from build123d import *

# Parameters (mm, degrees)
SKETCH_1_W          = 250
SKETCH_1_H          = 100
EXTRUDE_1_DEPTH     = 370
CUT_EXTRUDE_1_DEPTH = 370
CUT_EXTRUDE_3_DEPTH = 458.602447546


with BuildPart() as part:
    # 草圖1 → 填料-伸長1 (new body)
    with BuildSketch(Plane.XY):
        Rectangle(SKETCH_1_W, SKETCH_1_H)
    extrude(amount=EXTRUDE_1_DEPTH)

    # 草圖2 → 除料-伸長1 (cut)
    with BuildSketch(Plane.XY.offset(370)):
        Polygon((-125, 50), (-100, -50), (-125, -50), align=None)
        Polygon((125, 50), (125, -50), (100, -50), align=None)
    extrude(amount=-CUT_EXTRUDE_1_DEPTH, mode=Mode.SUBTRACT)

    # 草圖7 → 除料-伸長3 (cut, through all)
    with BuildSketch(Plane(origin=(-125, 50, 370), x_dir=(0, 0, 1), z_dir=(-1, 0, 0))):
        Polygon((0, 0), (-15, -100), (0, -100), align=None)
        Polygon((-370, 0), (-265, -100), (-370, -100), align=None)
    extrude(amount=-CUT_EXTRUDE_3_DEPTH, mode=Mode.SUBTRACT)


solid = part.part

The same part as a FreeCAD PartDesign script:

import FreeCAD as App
import Part
import Sketcher

doc = App.newDocument("Part")
body = doc.addObject("PartDesign::Body", "Body")

sketch1 = body.newObject("Sketcher::SketchObject", "Sketch")
sketch1.AttachmentSupport = (doc.getObject("XY_Plane"), [""])
sketch1.MapMode = "FlatFace"
sketch1.addGeometry([
    Part.LineSegment(App.Vector(-125, 50, 0), App.Vector(-125, -50, 0)),
    Part.LineSegment(App.Vector(-125, -50, 0), App.Vector(125, -50, 0)),
    Part.LineSegment(App.Vector(125, -50, 0), App.Vector(125, 50, 0)),
    Part.LineSegment(App.Vector(125, 50, 0), App.Vector(-125, 50, 0)),
], False)
sketch1.addConstraint([
    Sketcher.Constraint("Coincident", 0, 2, 1, 1),
    Sketcher.Constraint("Coincident", 1, 2, 2, 1),
    Sketcher.Constraint("Coincident", 2, 2, 3, 1),
    Sketcher.Constraint("Coincident", 3, 2, 0, 1),
    Sketcher.Constraint("Vertical", 0),
    Sketcher.Constraint("Horizontal", 1),
    Sketcher.Constraint("Vertical", 2),
    Sketcher.Constraint("Horizontal", 3),
    Sketcher.Constraint("Symmetric", 0, 2, 2, 2, -1, 1),
    Sketcher.Constraint("DistanceX", 1, 1, 1, 2, 250.0),
    Sketcher.Constraint("DistanceY", 0, 2, 0, 1, 100.0),
])
pad1 = body.newObject("PartDesign::Pad", "Pad")
pad1.Profile = sketch1
pad1.Length = 370

sketch2 = body.newObject("Sketcher::SketchObject", "Sketch001")
sketch2.AttachmentSupport = (doc.getObject("XY_Plane"), [""])
sketch2.MapMode = "FlatFace"
sketch2.AttachmentOffset = App.Placement(App.Vector(0, 0, 370), App.Rotation())
sketch2.addGeometry([
    Part.LineSegment(App.Vector(-100, -50, 0), App.Vector(-125, 50, 0)),
    Part.LineSegment(App.Vector(-125, 50, 0), App.Vector(-125, -50, 0)),
    Part.LineSegment(App.Vector(-125, -50, 0), App.Vector(-100, -50, 0)),
    Part.LineSegment(App.Vector(125, -50, 0), App.Vector(125, 50, 0)),
    Part.LineSegment(App.Vector(125, 50, 0), App.Vector(100, -50, 0)),
    Part.LineSegment(App.Vector(100, -50, 0), App.Vector(125, -50, 0)),
], False)
sketch2.addConstraint([
    Sketcher.Constraint("Coincident", 0, 2, 1, 1),
    Sketcher.Constraint("Coincident", 1, 2, 2, 1),
    Sketcher.Constraint("Coincident", 2, 2, 0, 1),
    Sketcher.Constraint("Coincident", 3, 2, 4, 1),
    Sketcher.Constraint("Coincident", 4, 2, 5, 1),
    Sketcher.Constraint("Coincident", 5, 2, 3, 1),
    Sketcher.Constraint("Vertical", 1),
    Sketcher.Constraint("Horizontal", 2),
    Sketcher.Constraint("Vertical", 3),
    Sketcher.Constraint("Horizontal", 5),
    Sketcher.Constraint("Symmetric", 1, 2, 3, 2, -1, 1),
    Sketcher.Constraint("Symmetric", 2, 2, 4, 2, -2),
    Sketcher.Constraint("Horizontal", 0, 2, 3, 2),
    Sketcher.Constraint("DistanceX", 2, 1, 2, 2, 25.0),
    Sketcher.Constraint("DistanceY", 1, 2, 1, 1, 100.0),
    Sketcher.Constraint("DistanceX", 0, 2, -1, 1, 125.0),
])
pocket1 = body.newObject("PartDesign::Pocket", "Pocket")
pocket1.Profile = sketch2
pocket1.Length = 370

sketch3 = body.newObject("Sketcher::SketchObject", "Sketch002")
sketch3.AttachmentSupport = (doc.getObject("YZ_Plane"), [""])
sketch3.MapMode = "FlatFace"
sketch3.AttachmentOffset = App.Placement(App.Vector(0, 0, -125), App.Rotation())
sketch3.addGeometry([
    Part.LineSegment(App.Vector(50, 370, 0), App.Vector(-50, 355, 0)),
    Part.LineSegment(App.Vector(-50, 355, 0), App.Vector(-50, 370, 0)),
    Part.LineSegment(App.Vector(-50, 370, 0), App.Vector(50, 370, 0)),
    Part.LineSegment(App.Vector(-50, 105, 0), App.Vector(50, 0, 0)),
    Part.LineSegment(App.Vector(50, 0, 0), App.Vector(-50, 0, 0)),
    Part.LineSegment(App.Vector(-50, 0, 0), App.Vector(-50, 105, 0)),
], False)
sketch3.addConstraint([
    Sketcher.Constraint("Coincident", 0, 2, 1, 1),
    Sketcher.Constraint("Coincident", 1, 2, 2, 1),
    Sketcher.Constraint("Coincident", 2, 2, 0, 1),
    Sketcher.Constraint("Coincident", 3, 2, 4, 1),
    Sketcher.Constraint("Coincident", 4, 2, 5, 1),
    Sketcher.Constraint("Coincident", 5, 2, 3, 1),
    Sketcher.Constraint("Vertical", 1),
    Sketcher.Constraint("Horizontal", 2),
    Sketcher.Constraint("Horizontal", 4),
    Sketcher.Constraint("Vertical", 5),
    Sketcher.Constraint("Symmetric", 3, 2, 4, 2, -1, 1),
    Sketcher.Constraint("Vertical", 2, 2, 3, 2),
    Sketcher.Constraint("Vertical", 1, 2, 4, 2),
    Sketcher.Constraint("DistanceX", 2, 1, 2, 2, 100.0),
    Sketcher.Constraint("DistanceY", 1, 1, 1, 2, 15.0),
    Sketcher.Constraint("DistanceY", 5, 1, 5, 2, 105.0),
    Sketcher.Constraint("DistanceY", -1, 1, 0, 2, 355.0),
])
pocket2 = body.newObject("PartDesign::Pocket", "Pocket001")
pocket2.Profile = sketch3
pocket2.Type = "ThroughAll"
pocket2.Reversed = True

doc.recompute()
